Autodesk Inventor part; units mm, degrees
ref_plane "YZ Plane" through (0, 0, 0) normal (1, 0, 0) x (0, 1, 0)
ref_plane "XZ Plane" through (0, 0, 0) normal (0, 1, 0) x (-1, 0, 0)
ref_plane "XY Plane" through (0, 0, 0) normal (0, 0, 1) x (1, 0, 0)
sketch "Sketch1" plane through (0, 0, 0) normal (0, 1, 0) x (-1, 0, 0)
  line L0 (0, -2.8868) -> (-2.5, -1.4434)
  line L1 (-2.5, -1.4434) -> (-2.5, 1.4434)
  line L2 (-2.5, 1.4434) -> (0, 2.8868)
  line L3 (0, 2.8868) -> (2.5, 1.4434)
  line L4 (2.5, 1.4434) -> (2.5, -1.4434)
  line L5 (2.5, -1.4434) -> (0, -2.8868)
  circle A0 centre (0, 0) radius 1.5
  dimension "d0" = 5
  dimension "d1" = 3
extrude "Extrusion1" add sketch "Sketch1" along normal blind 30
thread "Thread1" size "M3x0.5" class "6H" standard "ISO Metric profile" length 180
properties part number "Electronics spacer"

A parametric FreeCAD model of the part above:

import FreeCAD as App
import Part
import Sketcher
from FreeCAD import Vector
Q = App.Units.Quantity


def add_polygon(sketch, points):
    """Adds a closed chain of lines whose ends are joined by coincident constraints."""
    first, n = sketch.GeometryCount, len(points)
    for a, b in zip(points, points[1:] + points[:1]):
        sketch.addGeometry(Part.LineSegment(App.Vector(*a, 0), App.Vector(*b, 0)), False)
    for i in range(n):
        sketch.addConstraint(Sketcher.Constraint("Coincident", first + i, 2, first + (i + 1) % n, 1))

doc = App.newDocument("Part")
body = doc.addObject("PartDesign::Body", "Body")

sketch1 = body.newObject("Sketcher::SketchObject", "Sketch")
sketch1.AttachmentSupport = (doc.getObject("XZ_Plane"), [""])
sketch1.MapMode = "FlatFace"
add_polygon(sketch1, [(2.5, -1.4), (0, -2.9), (-2.5, -1.4), (-2.5, 1.4), (0, 2.9), (2.5, 1.4)])
sketch1.addGeometry(Part.Circle(Vector(0, 0, 0), Vector(0, 0, 1), 1.5), False)
sketch1.addConstraint([
    Sketcher.Constraint("Vertical", 2),
    Sketcher.Constraint("Vertical", 5),
    Sketcher.Constraint("Coincident", 6, 3, -1, 1),
    Sketcher.Constraint("Symmetric", 0, 2, 3, 2, -1, 1),
    Sketcher.Constraint("Symmetric", 1, 2, 4, 2, -1, 1),
    Sketcher.Constraint("PointOnObject", 0, 2, -2),
    Sketcher.Constraint("Parallel", 0, 3),
    Sketcher.Constraint("Horizontal", 2, 2, 4, 2),
    Sketcher.Constraint("Diameter", 6, Q("3 mm")),
    Sketcher.Constraint("DistanceX", 2, 2, 4, 2, Q("5 mm")),
    Sketcher.Constraint("Angle", 0, Q("-149.9996 deg")),
    Sketcher.Constraint("DistanceY", 2, 1, 2, 2, Q("2.8868 mm")),
])
pad1 = body.newObject("PartDesign::Pad", "Pad")
pad1.Profile = sketch1
pad1.Length = 30
pad1.Reversed = True

doc.recompute()
